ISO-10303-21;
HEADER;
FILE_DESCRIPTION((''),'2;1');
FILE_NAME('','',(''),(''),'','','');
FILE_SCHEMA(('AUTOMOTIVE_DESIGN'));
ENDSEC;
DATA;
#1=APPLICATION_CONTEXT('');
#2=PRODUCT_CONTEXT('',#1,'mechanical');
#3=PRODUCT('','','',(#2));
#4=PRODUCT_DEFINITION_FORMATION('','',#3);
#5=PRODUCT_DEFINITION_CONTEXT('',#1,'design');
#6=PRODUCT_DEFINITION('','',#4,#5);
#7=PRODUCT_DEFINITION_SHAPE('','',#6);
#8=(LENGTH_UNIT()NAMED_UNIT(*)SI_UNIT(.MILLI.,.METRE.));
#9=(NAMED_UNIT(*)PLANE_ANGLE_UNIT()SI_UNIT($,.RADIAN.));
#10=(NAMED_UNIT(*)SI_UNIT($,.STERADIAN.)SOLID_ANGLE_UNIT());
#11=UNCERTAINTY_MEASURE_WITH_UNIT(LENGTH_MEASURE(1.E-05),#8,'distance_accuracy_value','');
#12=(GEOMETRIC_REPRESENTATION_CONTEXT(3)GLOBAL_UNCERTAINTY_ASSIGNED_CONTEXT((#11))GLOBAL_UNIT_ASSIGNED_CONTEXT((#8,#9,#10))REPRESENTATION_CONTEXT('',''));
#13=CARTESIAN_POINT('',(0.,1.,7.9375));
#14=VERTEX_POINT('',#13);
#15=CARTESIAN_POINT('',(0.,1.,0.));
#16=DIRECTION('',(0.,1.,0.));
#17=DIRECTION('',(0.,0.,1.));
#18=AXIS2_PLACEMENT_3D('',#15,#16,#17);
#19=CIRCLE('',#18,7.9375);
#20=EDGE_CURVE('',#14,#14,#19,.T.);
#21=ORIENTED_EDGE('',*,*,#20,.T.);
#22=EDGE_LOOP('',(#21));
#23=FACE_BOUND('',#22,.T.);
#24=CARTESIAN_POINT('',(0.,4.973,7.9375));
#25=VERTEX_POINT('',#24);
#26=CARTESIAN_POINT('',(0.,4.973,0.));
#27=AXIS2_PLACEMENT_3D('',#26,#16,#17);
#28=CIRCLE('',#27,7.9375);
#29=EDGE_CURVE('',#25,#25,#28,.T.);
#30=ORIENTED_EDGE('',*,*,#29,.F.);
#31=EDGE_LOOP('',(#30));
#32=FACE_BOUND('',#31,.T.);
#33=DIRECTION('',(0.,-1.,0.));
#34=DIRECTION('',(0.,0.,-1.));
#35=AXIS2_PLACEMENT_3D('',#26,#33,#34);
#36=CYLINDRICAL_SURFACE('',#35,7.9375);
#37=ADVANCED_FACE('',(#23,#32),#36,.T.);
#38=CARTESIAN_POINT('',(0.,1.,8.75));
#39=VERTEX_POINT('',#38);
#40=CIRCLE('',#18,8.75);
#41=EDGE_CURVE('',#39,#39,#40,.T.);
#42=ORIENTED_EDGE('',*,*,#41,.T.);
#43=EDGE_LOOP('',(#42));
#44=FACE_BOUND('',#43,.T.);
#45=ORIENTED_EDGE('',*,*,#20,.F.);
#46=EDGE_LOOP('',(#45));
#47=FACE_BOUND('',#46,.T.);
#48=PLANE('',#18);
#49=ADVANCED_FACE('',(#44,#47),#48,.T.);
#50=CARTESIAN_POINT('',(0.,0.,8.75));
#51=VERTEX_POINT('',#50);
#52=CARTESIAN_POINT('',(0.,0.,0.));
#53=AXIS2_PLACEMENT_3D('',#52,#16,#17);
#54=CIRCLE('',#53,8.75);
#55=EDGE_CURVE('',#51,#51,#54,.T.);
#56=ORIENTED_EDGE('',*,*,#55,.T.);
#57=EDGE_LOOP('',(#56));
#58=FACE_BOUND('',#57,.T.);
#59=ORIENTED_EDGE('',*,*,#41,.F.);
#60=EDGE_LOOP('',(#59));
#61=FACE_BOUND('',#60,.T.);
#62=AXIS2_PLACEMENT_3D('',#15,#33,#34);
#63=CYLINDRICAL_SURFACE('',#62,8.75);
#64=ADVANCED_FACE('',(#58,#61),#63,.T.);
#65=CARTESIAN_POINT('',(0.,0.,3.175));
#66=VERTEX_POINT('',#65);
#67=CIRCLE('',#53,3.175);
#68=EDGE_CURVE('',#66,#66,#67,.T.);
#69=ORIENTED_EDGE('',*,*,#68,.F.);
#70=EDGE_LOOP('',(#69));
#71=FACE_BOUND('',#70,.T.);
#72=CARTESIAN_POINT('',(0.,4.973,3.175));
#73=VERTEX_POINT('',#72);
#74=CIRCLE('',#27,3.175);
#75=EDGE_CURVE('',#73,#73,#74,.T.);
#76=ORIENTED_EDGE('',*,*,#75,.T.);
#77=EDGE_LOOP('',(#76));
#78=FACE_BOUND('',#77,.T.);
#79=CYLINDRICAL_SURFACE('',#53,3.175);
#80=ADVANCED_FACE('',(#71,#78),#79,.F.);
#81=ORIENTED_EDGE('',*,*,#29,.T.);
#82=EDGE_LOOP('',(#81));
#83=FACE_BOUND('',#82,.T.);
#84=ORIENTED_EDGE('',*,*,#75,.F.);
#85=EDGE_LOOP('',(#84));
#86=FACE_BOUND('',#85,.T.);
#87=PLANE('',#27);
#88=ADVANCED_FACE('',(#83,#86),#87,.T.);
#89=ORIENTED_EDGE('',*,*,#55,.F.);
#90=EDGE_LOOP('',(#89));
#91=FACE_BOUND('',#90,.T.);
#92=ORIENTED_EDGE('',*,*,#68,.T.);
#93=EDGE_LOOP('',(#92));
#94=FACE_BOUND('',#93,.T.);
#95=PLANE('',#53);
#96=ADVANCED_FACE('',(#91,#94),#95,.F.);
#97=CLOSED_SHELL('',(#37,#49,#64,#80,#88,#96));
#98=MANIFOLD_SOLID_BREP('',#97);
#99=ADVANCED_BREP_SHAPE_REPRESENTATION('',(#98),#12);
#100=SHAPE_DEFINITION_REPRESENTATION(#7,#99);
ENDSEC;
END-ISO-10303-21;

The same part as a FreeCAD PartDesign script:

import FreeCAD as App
import Part
import Sketcher
from FreeCAD import Vector

doc = App.newDocument("Part")
body = doc.addObject("PartDesign::Body", "Body")

# Sketch on XZ plane
sketch1 = doc.addObject("Sketcher::SketchObject", "Sketch")
body.addObject(sketch1)
sketch1.AttachmentSupport = (doc.XZ_Plane, [""])
sketch1.MapMode = "FlatFace"
sketch1.addGeometry(Part.Circle(Vector(0, 0, 0), Vector(0, 0, 1), 9), False)
sketch1.addConstraint([
    Sketcher.Constraint("Coincident", 0, 3, -1, 1),
    Sketcher.Constraint("Diameter", 0, 17.5),
])
pad1 = doc.addObject("PartDesign::Pad", "Pad")
body.addObject(pad1)
pad1.Profile = sketch1
pad1.Length = 1
pad1.Reversed = True

# Sketch on XZ plane
sketch2 = doc.addObject("Sketcher::SketchObject", "Sketch001")
body.addObject(sketch2)
sketch2.AttachmentSupport = (doc.XZ_Plane, [""])
sketch2.MapMode = "FlatFace"
sketch2.AttachmentOffset = App.Placement(Vector(0, 0, -1), App.Rotation())
sketch2.addGeometry(Part.Circle(Vector(0, 0, 0), Vector(0, 0, 1), 8), False)
sketch2.addConstraint([
    Sketcher.Constraint("Coincident", 0, 3, -1, 1),
    Sketcher.Constraint("Diameter", 0, 15.875),
])
pad2 = doc.addObject("PartDesign::Pad", "Pad001")
body.addObject(pad2)
pad2.Profile = sketch2
pad2.Length = 3.973
pad2.Reversed = True

# Sketch on XZ plane
sketch3 = doc.addObject("Sketcher::SketchObject", "Sketch002")
body.addObject(sketch3)
sketch3.AttachmentSupport = (doc.XZ_Plane, [""])
sketch3.MapMode = "FlatFace"
sketch3.AttachmentOffset = App.Placement(Vector(0, 0, -4.973), App.Rotation())
sketch3.addGeometry(Part.Circle(Vector(0, 0, 0), Vector(0, 0, 1), 3.2), False)
sketch3.addConstraint([
    Sketcher.Constraint("Coincident", 0, 3, -1, 1),
    Sketcher.Constraint("Diameter", 0, 6.35),
])
pocket1 = doc.addObject("PartDesign::Pocket", "Pocket")
body.addObject(pocket1)
pocket1.Profile = sketch3
pocket1.Type = "ThroughAll"
pocket1.Reversed = True

doc.recompute()
